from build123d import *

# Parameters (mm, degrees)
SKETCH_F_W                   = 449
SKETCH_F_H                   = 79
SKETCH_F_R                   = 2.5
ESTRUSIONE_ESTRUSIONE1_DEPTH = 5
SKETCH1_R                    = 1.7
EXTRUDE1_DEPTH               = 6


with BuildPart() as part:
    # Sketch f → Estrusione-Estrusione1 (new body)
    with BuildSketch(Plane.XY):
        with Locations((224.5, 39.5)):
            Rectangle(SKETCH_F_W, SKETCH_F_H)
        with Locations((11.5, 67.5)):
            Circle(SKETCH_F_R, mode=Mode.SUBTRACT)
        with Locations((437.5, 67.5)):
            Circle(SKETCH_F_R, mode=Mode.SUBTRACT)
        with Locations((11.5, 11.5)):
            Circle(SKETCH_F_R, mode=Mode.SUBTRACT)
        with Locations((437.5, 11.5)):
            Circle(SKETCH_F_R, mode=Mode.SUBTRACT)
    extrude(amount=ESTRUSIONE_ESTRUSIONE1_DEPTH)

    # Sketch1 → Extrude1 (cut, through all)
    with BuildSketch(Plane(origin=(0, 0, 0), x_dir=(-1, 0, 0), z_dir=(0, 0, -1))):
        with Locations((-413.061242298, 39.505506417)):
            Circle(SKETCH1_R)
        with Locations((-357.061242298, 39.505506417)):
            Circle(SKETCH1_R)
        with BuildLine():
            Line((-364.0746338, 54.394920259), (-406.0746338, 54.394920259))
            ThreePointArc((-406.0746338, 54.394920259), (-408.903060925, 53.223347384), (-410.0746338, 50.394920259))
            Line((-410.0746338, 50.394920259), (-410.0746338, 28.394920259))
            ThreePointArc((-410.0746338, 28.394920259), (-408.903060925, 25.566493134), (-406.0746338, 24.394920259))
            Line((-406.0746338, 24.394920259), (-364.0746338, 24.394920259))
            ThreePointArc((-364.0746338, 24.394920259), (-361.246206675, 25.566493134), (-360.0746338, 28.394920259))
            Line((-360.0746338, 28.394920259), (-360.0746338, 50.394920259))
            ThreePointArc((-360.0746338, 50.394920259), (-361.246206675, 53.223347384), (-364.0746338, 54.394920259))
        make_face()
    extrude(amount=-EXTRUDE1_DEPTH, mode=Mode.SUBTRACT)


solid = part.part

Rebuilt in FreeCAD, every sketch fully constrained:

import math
import FreeCAD as App
import Part
import Sketcher
from FreeCAD import Vector

doc = App.newDocument("Part")
body = doc.addObject("PartDesign::Body", "Body")

sketch1 = body.newObject("Sketcher::SketchObject", "Sketch")
sketch1.AttachmentSupport = (doc.getObject("XY_Plane"), [""])
sketch1.MapMode = "FlatFace"
sketch1.addGeometry([
    Part.LineSegment(Vector(0, 79, 0), Vector(0, 0, 0)),
    Part.LineSegment(Vector(0, 0, 0), Vector(449, 0, 0)),
    Part.LineSegment(Vector(449, 0, 0), Vector(449, 79, 0)),
    Part.LineSegment(Vector(449, 79, 0), Vector(0, 79, 0)),
    Part.Circle(Vector(11.5, 11.5, 0), Vector(0, 0, 1), 2.5),
    Part.Circle(Vector(437.5, 11.5, 0), Vector(0, 0, 1), 2.5),
    Part.Circle(Vector(11.5, 67.5, 0), Vector(0, 0, 1), 2.5),
    Part.Circle(Vector(437.5, 67.5, 0), Vector(0, 0, 1), 2.5),
], False)
sketch1.addConstraint([
    Sketcher.Constraint("Coincident", 0, 2, 1, 1),
    Sketcher.Constraint("Coincident", 1, 2, 2, 1),
    Sketcher.Constraint("Coincident", 2, 2, 3, 1),
    Sketcher.Constraint("Coincident", 3, 2, 0, 1),
    Sketcher.Constraint("Vertical", 0),
    Sketcher.Constraint("Horizontal", 1),
    Sketcher.Constraint("Vertical", 2),
    Sketcher.Constraint("Horizontal", 3),
    Sketcher.Constraint("Coincident", 0, 2, -1, 1),
    Sketcher.Constraint("Equal", 4, 5),
    Sketcher.Constraint("Equal", 5, 6),
    Sketcher.Constraint("Equal", 6, 7),
    Sketcher.Constraint("Horizontal", 4, 3, 5, 3),
    Sketcher.Constraint("Horizontal", 6, 3, 7, 3),
    Sketcher.Constraint("Vertical", 4, 3, 6, 3),
    Sketcher.Constraint("Vertical", 5, 3, 7, 3),
    Sketcher.Constraint("Diameter", 4, 5.0),
    Sketcher.Constraint("DistanceX", 1, 1, 1, 2, 449.0),
    Sketcher.Constraint("DistanceY", 0, 2, 0, 1, 79.0),
    Sketcher.Constraint("DistanceX", 4, 3, 5, 3, 426.0),
    Sketcher.Constraint("DistanceY", 4, 3, 6, 3, 56.0),
    Sketcher.Constraint("DistanceX", -1, 1, 4, 3, 11.5),
    Sketcher.Constraint("DistanceY", -1, 1, 4, 3, 11.5),
])
pad1 = body.newObject("PartDesign::Pad", "Pad")
pad1.Profile = sketch1
pad1.Length = 5

sketch2 = body.newObject("Sketcher::SketchObject", "Sketch001")
sketch2.AttachmentSupport = (doc.getObject("XY_Plane"), [""])
sketch2.MapMode = "FlatFace"
sketch2.addGeometry([
    Part.Circle(Vector(413.1, 39.5, 0), Vector(0, 0, 1), 1.7),
    Part.Circle(Vector(357.1, 39.5, 0), Vector(0, 0, 1), 1.7),
    Part.LineSegment(Vector(364.1, 54.4, 0), Vector(406.1, 54.4, 0)),
    Part.ArcOfCircle(Part.Circle(Vector(406.1, 50.4, 0), Vector(0, 0, 1), 4), math.radians(0), math.radians(90)),
    Part.LineSegment(Vector(410.1, 50.4, 0), Vector(410.1, 28.4, 0)),
    Part.ArcOfCircle(Part.Circle(Vector(406.1, 28.4, 0), Vector(0, 0, 1), 4), math.radians(-90), math.radians(0)),
    Part.LineSegment(Vector(406.1, 24.4, 0), Vector(364.1, 24.4, 0)),
    Part.ArcOfCircle(Part.Circle(Vector(364.1, 28.4, 0), Vector(0, 0, 1), 4), math.radians(180), math.radians(270)),
    Part.LineSegment(Vector(360.1, 28.4, 0), Vector(360.1, 50.4, 0)),
    Part.ArcOfCircle(Part.Circle(Vector(364.1, 50.4, 0), Vector(0, 0, 1), 4), math.radians(90), math.radians(180)),
], False)
sketch2.addConstraint([
    Sketcher.Constraint("Tangent", 2, 2, 3, 2),
    Sketcher.Constraint("Tangent", 3, 1, 4, 1),
    Sketcher.Constraint("Tangent", 4, 2, 5, 2),
    Sketcher.Constraint("Tangent", 5, 1, 6, 1),
    Sketcher.Constraint("Tangent", 6, 2, 7, 2),
    Sketcher.Constraint("Tangent", 7, 1, 8, 1),
    Sketcher.Constraint("Tangent", 8, 2, 9, 2),
    Sketcher.Constraint("Tangent", 9, 1, 2, 1),
    Sketcher.Constraint("Horizontal", 2),
    Sketcher.Constraint("Vertical", 4),
    Sketcher.Constraint("Horizontal", 6),
    Sketcher.Constraint("Vertical", 8),
    Sketcher.Constraint("Equal", 0, 1),
    Sketcher.Constraint("Equal", 3, 5),
    Sketcher.Constraint("Equal", 5, 7),
    Sketcher.Constraint("Equal", 7, 9),
    Sketcher.Constraint("Horizontal", 0, 3, 1, 3),
    Sketcher.Constraint("Radius", 3, 4.0),
    Sketcher.Constraint("Diameter", 0, 3.4),
    Sketcher.Constraint("DistanceX", 2, 1, 2, 2, 42.0),
    Sketcher.Constraint("DistanceY", 4, 2, 4, 1, 22.0),
    Sketcher.Constraint("DistanceX", 1, 3, 0, 3, 56.0),
    Sketcher.Constraint("DistanceY", -1, 1, 3, 3, 50.39492),
    Sketcher.Constraint("DistanceX", 3, 3, 0, 3, 6.986608),
    Sketcher.Constraint("DistanceX", -1, 1, 0, 3, 413.061242),
    Sketcher.Constraint("DistanceY", -1, 1, 0, 3, 39.505506),
])
pocket1 = body.newObject("PartDesign::Pocket", "Pocket")
pocket1.Profile = sketch2
pocket1.Type = "ThroughAll"
pocket1.Reversed = True

doc.recompute()
